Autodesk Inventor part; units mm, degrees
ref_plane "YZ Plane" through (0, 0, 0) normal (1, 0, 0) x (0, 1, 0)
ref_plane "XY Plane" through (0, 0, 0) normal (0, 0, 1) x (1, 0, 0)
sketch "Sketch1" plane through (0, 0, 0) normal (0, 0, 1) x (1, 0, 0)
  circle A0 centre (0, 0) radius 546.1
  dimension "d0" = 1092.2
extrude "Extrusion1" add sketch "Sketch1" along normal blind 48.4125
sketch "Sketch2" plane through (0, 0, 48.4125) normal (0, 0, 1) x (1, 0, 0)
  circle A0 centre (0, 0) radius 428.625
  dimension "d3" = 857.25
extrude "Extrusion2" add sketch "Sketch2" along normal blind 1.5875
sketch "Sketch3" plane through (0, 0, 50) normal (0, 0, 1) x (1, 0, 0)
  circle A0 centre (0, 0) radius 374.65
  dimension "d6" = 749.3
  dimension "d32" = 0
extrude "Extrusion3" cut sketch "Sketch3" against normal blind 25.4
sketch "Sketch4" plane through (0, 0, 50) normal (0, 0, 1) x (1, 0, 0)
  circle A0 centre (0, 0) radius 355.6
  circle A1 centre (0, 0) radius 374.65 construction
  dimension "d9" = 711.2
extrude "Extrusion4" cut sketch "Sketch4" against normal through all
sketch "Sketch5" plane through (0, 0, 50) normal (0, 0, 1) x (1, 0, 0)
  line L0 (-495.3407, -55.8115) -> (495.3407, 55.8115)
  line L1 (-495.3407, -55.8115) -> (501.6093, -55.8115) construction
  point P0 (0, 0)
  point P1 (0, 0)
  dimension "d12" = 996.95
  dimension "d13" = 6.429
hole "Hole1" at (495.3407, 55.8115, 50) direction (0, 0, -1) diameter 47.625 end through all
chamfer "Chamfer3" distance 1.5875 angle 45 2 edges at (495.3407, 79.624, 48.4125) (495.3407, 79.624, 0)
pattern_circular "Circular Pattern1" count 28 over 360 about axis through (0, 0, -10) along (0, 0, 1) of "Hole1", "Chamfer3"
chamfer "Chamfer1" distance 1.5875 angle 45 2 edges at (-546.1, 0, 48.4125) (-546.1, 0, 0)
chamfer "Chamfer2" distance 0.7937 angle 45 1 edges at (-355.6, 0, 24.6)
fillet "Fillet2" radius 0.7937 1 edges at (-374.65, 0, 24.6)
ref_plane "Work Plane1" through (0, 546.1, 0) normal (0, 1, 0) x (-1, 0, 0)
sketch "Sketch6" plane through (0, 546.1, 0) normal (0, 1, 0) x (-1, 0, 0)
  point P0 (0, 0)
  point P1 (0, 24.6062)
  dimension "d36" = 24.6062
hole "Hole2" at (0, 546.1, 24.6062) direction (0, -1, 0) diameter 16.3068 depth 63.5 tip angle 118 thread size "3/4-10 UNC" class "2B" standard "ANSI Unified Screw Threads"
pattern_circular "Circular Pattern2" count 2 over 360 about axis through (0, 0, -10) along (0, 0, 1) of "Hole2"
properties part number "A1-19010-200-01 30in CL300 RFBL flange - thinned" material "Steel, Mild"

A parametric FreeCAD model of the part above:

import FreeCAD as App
import Part
import Sketcher
Q = App.Units.Quantity


def edges_at(feature, points):
    """Names of the edges that pass closest to the given points."""
    edges = feature.Shape.Edges
    near = lambda p: min(range(len(edges)), key=lambda i: edges[i].distToShape(Part.Vertex(*p))[0])
    return sorted({f"Edge{near(p) + 1}" for p in points})

doc = App.newDocument("Part")
params = doc.addObject("Spreadsheet::Sheet", "Params")
for row, (alias, value) in enumerate([
    ("sketch1_diameter", "43 in"),
    ("pad1_length", "1.9060039 in"),
    ("sketch2_diameter", "33.75 in"),
    ("pad2_length", "0.0625 in"),
    ("sketch3_diameter", "29.5 in"),
    ("pocket1_length", "1 in"),
    ("sketch4_diameter", "28 in"),
    ("sketch5_diameter", "1.875 in"),
    ("hole_diameter", "1.875 in"),
    ("chamfer_size", "0.0625 in"),
    ("chamfer2_size", "0.0625 in"),
    ("chamfer3_size", "0.031248 in"),
    ("fillet_radius", "0.031248 in"),
    ("sketch6_diameter", "0.642 in"),
    ("hole2_diameter", "0.642 in"),
    ("hole2_depth", "2.5 in"),
], start=1):
    params.set(f"A{row}", alias)
    params.set(f"B{row}", "=" + value)
    params.setAlias(f"B{row}", alias)

body = doc.addObject("PartDesign::Body", "Body")

# Sketch on XY plane
sketch1 = body.newObject("Sketcher::SketchObject", "Sketch")
sketch1.AttachmentSupport = (doc.getObject("XY_Plane"), [""])
sketch1.MapMode = "FlatFace"
sketch1.addGeometry(Part.Circle(App.Vector(0, 0, 0), App.Vector(0, 0, 1), 546), False)
sketch1.addConstraint([
    Sketcher.Constraint("Coincident", 0, 3, -1, 1),
    Sketcher.Constraint("Diameter", 0, Q("43 in")),
])
sketch1.setExpression("Constraints[1]", "Params.sketch1_diameter")
pad1 = body.newObject("PartDesign::Pad", "Pad")
pad1.Profile = sketch1
pad1.setExpression("Length", "Params.pad1_length")

# Sketch on XY plane
sketch2 = body.newObject("Sketcher::SketchObject", "Sketch001")
sketch2.AttachmentSupport = (doc.getObject("XY_Plane"), [""])
sketch2.MapMode = "FlatFace"
sketch2.AttachmentOffset = App.Placement(App.Vector(0, 0, 1.9060039 * 25.4), App.Rotation())
sketch2.addGeometry(Part.Circle(App.Vector(0, 0, 0), App.Vector(0, 0, 1), 429), False)
sketch2.addConstraint([
    Sketcher.Constraint("Coincident", 0, 3, -1, 1),
    Sketcher.Constraint("Diameter", 0, Q("33.75 in")),
])
sketch2.setExpression("Constraints[1]", "Params.sketch2_diameter")
pad2 = body.newObject("PartDesign::Pad", "Pad001")
pad2.Profile = sketch2
pad2.setExpression("Length", "Params.pad2_length")

# Sketch on XY plane
sketch3 = body.newObject("Sketcher::SketchObject", "Sketch002")
sketch3.AttachmentSupport = (doc.getObject("XY_Plane"), [""])
sketch3.MapMode = "FlatFace"
sketch3.AttachmentOffset = App.Placement(App.Vector(0, 0, 1.9685039 * 25.4), App.Rotation())
sketch3.addGeometry(Part.Circle(App.Vector(0, 0, 0), App.Vector(0, 0, 1), 375), False)
sketch3.addConstraint([
    Sketcher.Constraint("Coincident", 0, 3, -1, 1),
    Sketcher.Constraint("Diameter", 0, Q("29.5 in")),
])
sketch3.setExpression("Constraints[1]", "Params.sketch3_diameter")
pocket1 = body.newObject("PartDesign::Pocket", "Pocket")
pocket1.Profile = sketch3
pocket1.setExpression("Length", "Params.pocket1_length")

# Sketch on XY plane
sketch4 = body.newObject("Sketcher::SketchObject", "Sketch003")
sketch4.AttachmentSupport = (doc.getObject("XY_Plane"), [""])
sketch4.MapMode = "FlatFace"
sketch4.AttachmentOffset = App.Placement(App.Vector(0, 0, 1.9685039 * 25.4), App.Rotation())
sketch4.addGeometry(Part.Circle(App.Vector(0, 0, 0), App.Vector(0, 0, 1), 356), False)
sketch4.addConstraint([
    Sketcher.Constraint("Coincident", 0, 3, -1, 1),
    Sketcher.Constraint("Diameter", 0, Q("28 in")),
])
sketch4.setExpression("Constraints[1]", "Params.sketch4_diameter")
pocket2 = body.newObject("PartDesign::Pocket", "Pocket001")
pocket2.Profile = sketch4
pocket2.Type = "ThroughAll"

# Sketch on XY plane
sketch5 = body.newObject("Sketcher::SketchObject", "Sketch004")
sketch5.AttachmentSupport = (doc.getObject("XY_Plane"), [""])
sketch5.MapMode = "FlatFace"
sketch5.AttachmentOffset = App.Placement(App.Vector(0, 0, 1.9685039 * 25.4), App.Rotation())
sketch5.addGeometry(Part.Circle(App.Vector(495, 56, 0), App.Vector(0, 0, 1), 24), False)
sketch5.addConstraint([
    Sketcher.Constraint("Diameter", 0, Q("1.875 in")),
    Sketcher.Constraint("DistanceX", -1, 1, 0, 3, Q("19.5016 in")),
    Sketcher.Constraint("DistanceY", -1, 1, 0, 3, Q("2.1973 in")),
])
sketch5.setExpression("Constraints[0]", "Params.sketch5_diameter")
doc.recompute()
hole = body.newObject("PartDesign::Hole", "Hole")
hole.Profile = sketch5
hole.ThreadType = "None"
hole.setExpression("Diameter", "Params.hole_diameter")
hole.DepthType = "ThroughAll"
doc.recompute()

chamfer = body.newObject("PartDesign::Chamfer", "Chamfer")
chamfer.Base = (hole, edges_at(hole, [(495.341, 79.624, 48.413), (495.341, 79.624, 0)]))
chamfer.setExpression("Size", "Params.chamfer_size")
doc.recompute()

polarpattern = body.newObject("PartDesign::PolarPattern", "PolarPattern")
polarpattern.Originals = [hole, chamfer]
polarpattern.Axis = (doc.getObject("Z_Axis"), [""])
polarpattern.Angle = 360
polarpattern.Occurrences = 28
body.Tip = polarpattern
doc.recompute()

chamfer2 = body.newObject("PartDesign::Chamfer", "Chamfer001")
chamfer2.Base = (polarpattern, edges_at(polarpattern, [(-546.1, 0, 48.413), (-546.1, 0, 0)]))
chamfer2.setExpression("Size", "Params.chamfer2_size")
doc.recompute()

chamfer3 = body.newObject("PartDesign::Chamfer", "Chamfer002")
chamfer3.Base = (chamfer2, edges_at(chamfer2, [(-355.6, 0, 24.6)]))
chamfer3.setExpression("Size", "Params.chamfer3_size")
doc.recompute()

fillet = body.newObject("PartDesign::Fillet", "Fillet")
fillet.Base = (chamfer3, edges_at(chamfer3, [(-374.65, 0, 24.6)]))
fillet.setExpression("Radius", "Params.fillet_radius")

# Sketch on XZ plane
sketch6 = body.newObject("Sketcher::SketchObject", "Sketch005")
sketch6.AttachmentSupport = (doc.getObject("XZ_Plane"), [""])
sketch6.MapMode = "FlatFace"
sketch6.AttachmentOffset = App.Placement(App.Vector(0, 0, -21.5 * 25.4), App.Rotation())
sketch6.addGeometry(Part.Circle(App.Vector(0, 25, 0), App.Vector(0, 0, 1), 8), False)
sketch6.addConstraint([
    Sketcher.Constraint("PointOnObject", 0, 3, -2),
    Sketcher.Constraint("Diameter", 0, Q("0.642 in")),
    Sketcher.Constraint("DistanceY", -1, 1, 0, 3, Q("0.968748 in")),
])
sketch6.setExpression("Constraints[1]", "Params.sketch6_diameter")
doc.recompute()
hole2 = body.newObject("PartDesign::Hole", "Hole001")
hole2.Profile = sketch6
hole2.ThreadType = "None"
hole2.setExpression("Diameter", "Params.hole2_diameter")
hole2.DepthType = "Dimension"
hole2.setExpression("Depth", "Params.hole2_depth")
hole2.DrillPoint = "Angled"
hole2.DrillPointAngle = 118
hole2.Reversed = True
doc.recompute()

polarpattern2 = body.newObject("PartDesign::PolarPattern", "PolarPattern001")
polarpattern2.Originals = [hole2]
polarpattern2.Axis = (doc.getObject("Z_Axis"), [""])
polarpattern2.Angle = 360
polarpattern2.Occurrences = 2
body.Tip = polarpattern2

doc.recompute()
